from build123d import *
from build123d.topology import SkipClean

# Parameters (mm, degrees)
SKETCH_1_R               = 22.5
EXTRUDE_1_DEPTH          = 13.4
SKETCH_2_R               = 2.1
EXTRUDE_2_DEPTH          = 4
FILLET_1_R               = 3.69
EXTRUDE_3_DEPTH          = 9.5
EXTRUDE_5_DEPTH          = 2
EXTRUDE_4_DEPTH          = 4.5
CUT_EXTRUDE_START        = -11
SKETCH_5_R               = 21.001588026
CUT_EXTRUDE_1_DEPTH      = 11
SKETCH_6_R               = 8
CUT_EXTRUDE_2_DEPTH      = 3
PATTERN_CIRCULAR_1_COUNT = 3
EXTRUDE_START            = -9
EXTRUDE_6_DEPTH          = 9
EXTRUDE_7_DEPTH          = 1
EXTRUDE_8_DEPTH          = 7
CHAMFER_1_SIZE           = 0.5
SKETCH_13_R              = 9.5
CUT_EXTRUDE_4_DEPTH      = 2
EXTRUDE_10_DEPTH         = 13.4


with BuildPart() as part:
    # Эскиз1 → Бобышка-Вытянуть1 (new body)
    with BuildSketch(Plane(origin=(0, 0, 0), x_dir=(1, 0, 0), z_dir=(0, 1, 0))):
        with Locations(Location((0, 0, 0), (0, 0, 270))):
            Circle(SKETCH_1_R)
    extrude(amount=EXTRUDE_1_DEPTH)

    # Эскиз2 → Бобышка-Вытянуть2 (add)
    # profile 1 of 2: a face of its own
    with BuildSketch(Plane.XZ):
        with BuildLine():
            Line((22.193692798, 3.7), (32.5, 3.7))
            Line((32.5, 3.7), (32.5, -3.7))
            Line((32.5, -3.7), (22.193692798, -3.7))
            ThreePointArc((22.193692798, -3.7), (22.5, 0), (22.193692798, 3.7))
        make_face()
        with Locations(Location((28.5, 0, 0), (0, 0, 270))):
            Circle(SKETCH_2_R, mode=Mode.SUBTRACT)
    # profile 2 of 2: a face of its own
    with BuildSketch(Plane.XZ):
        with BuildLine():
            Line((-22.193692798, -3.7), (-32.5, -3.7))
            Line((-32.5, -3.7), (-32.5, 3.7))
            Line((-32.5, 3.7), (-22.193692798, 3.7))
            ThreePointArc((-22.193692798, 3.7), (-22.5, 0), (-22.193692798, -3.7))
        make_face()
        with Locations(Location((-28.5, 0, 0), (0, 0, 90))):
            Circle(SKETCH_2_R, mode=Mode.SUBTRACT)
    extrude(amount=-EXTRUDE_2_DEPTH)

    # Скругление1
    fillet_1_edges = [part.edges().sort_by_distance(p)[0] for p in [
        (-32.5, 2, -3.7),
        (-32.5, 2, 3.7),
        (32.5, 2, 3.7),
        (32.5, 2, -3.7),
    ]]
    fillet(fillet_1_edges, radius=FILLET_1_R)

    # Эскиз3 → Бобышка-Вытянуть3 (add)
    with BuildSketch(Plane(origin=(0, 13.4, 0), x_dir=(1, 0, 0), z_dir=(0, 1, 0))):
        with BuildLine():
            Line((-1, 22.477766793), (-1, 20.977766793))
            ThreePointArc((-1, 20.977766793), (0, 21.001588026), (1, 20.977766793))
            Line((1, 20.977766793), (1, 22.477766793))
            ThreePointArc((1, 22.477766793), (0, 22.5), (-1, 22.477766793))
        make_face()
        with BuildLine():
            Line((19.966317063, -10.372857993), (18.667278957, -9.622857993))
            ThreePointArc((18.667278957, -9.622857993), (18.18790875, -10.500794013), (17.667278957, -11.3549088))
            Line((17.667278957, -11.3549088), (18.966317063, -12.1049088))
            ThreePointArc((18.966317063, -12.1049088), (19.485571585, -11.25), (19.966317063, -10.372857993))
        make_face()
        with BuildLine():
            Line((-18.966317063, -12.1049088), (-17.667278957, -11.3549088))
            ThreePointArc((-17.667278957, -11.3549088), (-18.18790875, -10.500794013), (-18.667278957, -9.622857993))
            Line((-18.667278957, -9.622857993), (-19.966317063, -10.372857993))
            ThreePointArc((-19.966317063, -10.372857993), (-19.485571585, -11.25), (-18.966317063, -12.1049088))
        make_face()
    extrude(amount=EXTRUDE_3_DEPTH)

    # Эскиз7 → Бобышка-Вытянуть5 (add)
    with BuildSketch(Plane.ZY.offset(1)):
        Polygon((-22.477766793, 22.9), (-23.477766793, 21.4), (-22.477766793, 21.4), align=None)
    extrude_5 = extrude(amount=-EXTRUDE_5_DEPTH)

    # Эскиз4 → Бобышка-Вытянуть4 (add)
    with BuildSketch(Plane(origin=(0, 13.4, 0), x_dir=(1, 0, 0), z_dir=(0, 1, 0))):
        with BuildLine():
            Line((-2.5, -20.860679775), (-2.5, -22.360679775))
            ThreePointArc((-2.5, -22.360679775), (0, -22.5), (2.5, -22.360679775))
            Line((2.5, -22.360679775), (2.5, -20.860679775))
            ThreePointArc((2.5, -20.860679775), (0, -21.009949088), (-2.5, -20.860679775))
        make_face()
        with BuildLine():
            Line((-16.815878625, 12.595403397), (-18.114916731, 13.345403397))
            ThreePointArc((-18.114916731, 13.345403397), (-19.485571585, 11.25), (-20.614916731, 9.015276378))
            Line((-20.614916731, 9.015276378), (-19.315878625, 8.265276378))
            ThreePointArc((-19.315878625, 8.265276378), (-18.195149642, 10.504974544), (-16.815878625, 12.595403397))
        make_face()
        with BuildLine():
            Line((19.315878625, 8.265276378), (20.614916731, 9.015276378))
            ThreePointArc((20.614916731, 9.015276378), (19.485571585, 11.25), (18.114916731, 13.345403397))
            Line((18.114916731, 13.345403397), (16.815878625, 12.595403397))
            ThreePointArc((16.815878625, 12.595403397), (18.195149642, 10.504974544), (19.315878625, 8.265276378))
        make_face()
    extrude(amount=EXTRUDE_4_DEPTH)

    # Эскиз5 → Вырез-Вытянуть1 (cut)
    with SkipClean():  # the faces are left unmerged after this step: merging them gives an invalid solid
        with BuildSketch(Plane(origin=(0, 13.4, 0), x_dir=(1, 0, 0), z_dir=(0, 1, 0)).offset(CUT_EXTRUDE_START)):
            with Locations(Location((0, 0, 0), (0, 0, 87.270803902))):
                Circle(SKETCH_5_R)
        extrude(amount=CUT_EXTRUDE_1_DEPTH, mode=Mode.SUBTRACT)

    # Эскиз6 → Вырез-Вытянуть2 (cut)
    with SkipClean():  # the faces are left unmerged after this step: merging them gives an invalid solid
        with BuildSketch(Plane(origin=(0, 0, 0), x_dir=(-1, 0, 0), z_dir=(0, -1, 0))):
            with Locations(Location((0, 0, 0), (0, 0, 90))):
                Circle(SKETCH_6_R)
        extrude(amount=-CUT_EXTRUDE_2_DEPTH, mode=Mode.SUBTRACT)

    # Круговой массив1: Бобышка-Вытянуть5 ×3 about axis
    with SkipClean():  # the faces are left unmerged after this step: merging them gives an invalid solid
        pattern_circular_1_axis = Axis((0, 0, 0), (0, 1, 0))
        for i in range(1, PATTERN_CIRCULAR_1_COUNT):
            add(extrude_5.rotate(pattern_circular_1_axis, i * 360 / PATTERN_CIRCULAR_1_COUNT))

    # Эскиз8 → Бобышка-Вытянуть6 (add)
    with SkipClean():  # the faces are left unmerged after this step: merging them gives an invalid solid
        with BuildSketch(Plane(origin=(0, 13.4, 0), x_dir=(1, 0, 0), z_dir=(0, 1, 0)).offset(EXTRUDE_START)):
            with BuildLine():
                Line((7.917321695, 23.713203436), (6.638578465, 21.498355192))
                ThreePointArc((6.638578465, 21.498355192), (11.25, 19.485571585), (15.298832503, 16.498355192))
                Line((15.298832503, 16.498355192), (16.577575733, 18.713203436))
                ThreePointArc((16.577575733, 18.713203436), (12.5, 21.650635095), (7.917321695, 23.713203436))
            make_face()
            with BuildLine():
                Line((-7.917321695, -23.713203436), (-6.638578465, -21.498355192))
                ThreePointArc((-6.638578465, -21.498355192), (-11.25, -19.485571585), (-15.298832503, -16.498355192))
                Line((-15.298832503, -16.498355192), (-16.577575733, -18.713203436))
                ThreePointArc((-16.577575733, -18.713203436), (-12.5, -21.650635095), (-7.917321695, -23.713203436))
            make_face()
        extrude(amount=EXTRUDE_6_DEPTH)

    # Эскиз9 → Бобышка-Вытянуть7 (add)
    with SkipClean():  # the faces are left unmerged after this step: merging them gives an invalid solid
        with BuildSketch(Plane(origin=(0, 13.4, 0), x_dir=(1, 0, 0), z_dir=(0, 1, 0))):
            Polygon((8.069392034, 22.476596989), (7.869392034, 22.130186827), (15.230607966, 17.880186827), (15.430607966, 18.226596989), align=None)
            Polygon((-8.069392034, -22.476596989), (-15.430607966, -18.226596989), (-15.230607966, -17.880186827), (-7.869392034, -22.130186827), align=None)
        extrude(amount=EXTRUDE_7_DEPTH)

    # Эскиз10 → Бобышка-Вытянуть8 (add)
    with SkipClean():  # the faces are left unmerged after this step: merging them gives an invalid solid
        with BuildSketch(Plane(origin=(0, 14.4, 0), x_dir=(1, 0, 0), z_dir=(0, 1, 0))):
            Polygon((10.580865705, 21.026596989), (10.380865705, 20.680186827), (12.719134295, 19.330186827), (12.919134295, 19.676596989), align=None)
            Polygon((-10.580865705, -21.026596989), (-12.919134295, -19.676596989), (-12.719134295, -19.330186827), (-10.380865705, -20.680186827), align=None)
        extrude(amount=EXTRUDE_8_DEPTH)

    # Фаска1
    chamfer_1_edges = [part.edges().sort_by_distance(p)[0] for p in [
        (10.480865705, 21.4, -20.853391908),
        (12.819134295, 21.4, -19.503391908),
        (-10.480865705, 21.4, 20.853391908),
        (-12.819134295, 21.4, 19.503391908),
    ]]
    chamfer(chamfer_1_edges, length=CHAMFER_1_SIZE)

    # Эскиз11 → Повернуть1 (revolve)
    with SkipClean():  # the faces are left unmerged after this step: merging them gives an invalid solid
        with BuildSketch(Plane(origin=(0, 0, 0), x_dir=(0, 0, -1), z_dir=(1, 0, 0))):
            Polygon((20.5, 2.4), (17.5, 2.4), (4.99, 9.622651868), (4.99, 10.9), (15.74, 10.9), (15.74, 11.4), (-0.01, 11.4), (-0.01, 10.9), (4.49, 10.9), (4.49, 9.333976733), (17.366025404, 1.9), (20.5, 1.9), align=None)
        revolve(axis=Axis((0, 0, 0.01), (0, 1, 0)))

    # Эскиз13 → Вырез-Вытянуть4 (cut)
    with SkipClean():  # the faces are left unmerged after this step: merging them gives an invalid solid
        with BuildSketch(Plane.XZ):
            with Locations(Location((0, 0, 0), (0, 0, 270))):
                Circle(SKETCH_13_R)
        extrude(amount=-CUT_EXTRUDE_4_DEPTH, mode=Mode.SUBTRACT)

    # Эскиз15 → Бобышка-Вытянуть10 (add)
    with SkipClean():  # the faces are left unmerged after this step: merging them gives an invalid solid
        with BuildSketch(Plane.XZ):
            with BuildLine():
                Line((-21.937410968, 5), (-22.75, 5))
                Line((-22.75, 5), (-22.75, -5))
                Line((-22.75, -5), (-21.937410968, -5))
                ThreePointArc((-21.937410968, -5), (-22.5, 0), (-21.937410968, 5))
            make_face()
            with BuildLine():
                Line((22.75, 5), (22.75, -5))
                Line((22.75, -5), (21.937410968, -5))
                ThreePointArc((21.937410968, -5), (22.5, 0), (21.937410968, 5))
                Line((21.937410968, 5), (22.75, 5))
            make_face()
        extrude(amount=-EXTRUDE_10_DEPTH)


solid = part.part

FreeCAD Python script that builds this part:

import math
import FreeCAD as App
import Part
import Sketcher

V = App.Vector
Q = App.Units.Quantity


def edges_at(feature, points):
    """Names of the edges that pass closest to the given points."""
    edges = feature.Shape.Edges
    near = lambda p: min(range(len(edges)), key=lambda i: edges[i].distToShape(Part.Vertex(*p))[0])
    return sorted({f"Edge{near(p) + 1}" for p in points})

doc = App.newDocument("Part")
body = doc.addObject("PartDesign::Body", "Body")

sketch1 = body.newObject("Sketcher::SketchObject", "Sketch")
sketch1.AttachmentSupport = (doc.getObject("XZ_Plane"), [""])
sketch1.MapMode = "FlatFace"
sketch1.addGeometry(Part.Circle(V(0, 0, 0), V(0, 0, 1), 22), False)
sketch1.addConstraint([
    Sketcher.Constraint("Coincident", 0, 3, -1, 1),
    Sketcher.Constraint("Diameter", 0, Q("45 mm")),
])
pad1 = body.newObject("PartDesign::Pad", "Pad")
pad1.Profile = sketch1
pad1.Length = 13.4
pad1.Reversed = True

sketch2 = body.newObject("Sketcher::SketchObject", "Sketch001")
sketch2.AttachmentSupport = (doc.getObject("XZ_Plane"), [""])
sketch2.MapMode = "FlatFace"
sketch2.addGeometry([
    Part.LineSegment(V(32.5, 3.7, 0), V(22.2, 3.7, 0)),
    Part.ArcOfCircle(Part.Circle(V(0, 0, 0), V(0, 0, 1), 22.5), math.radians(-9.46), math.radians(9.46)),
    Part.LineSegment(V(22.2, -3.7, 0), V(32.5, -3.7, 0)),
    Part.LineSegment(V(32.5, -3.7, 0), V(32.5, 3.7, 0)),
    Part.Circle(V(28.5, 0, 0), V(0, 0, 1), 2.1),
    Part.LineSegment(V(-32.5, -3.7, 0), V(-22.2, -3.7, 0)),
    Part.ArcOfCircle(Part.Circle(V(0, 0, 0), V(0, 0, 1), 22.5), math.radians(170.54), math.radians(189.46)),
    Part.LineSegment(V(-22.2, 3.7, 0), V(-32.5, 3.7, 0)),
    Part.LineSegment(V(-32.5, 3.7, 0), V(-32.5, -3.7, 0)),
    Part.Circle(V(-28.5, 0, 0), V(0, 0, 1), 2.1),
], False)
sketch2.addConstraint([
    Sketcher.Constraint("Coincident", 0, 2, 1, 2),
    Sketcher.Constraint("Coincident", 1, 1, 2, 1),
    Sketcher.Constraint("Coincident", 2, 2, 3, 1),
    Sketcher.Constraint("Coincident", 3, 2, 0, 1),
    Sketcher.Constraint("Coincident", 5, 2, 6, 2),
    Sketcher.Constraint("Coincident", 6, 1, 7, 1),
    Sketcher.Constraint("Coincident", 7, 2, 8, 1),
    Sketcher.Constraint("Coincident", 8, 2, 5, 1),
    Sketcher.Constraint("Horizontal", 0),
    Sketcher.Constraint("Horizontal", 2),
    Sketcher.Constraint("Vertical", 3),
    Sketcher.Constraint("Horizontal", 5),
    Sketcher.Constraint("Horizontal", 7),
    Sketcher.Constraint("Vertical", 8),
    Sketcher.Constraint("Coincident", 1, 3, -1, 1),
    Sketcher.Constraint("Coincident", 6, 3, -1, 1),
    Sketcher.Constraint("Equal", 1, 6),
    Sketcher.Constraint("Equal", 4, 9),
    Sketcher.Constraint("Symmetric", 4, 3, 9, 3, -1, 1),
    Sketcher.Constraint("Symmetric", 2, 2, 7, 2, -1, 1),
    Sketcher.Constraint("PointOnObject", 4, 3, -1),
    Sketcher.Constraint("Horizontal", 2, 2, 5, 2),
    Sketcher.Constraint("Horizontal", 3, 2, 6, 1),
    Sketcher.Constraint("Diameter", 4, Q("4.2 mm")),
    Sketcher.Constraint("Radius", 1, Q("22.5 mm")),
    Sketcher.Constraint("DistanceY", 3, 1, 3, 2, Q("7.4 mm")),
    Sketcher.Constraint("DistanceX", 9, 3, 4, 3, Q("57 mm")),
    Sketcher.Constraint("DistanceX", 4, 3, 2, 2, Q("4 mm")),
])
pad2 = body.newObject("PartDesign::Pad", "Pad001")
pad2.Profile = sketch2
pad2.Length = 4
pad2.Reversed = True
doc.recompute()

fillet = body.newObject("PartDesign::Fillet", "Fillet")
fillet.Base = (pad2, edges_at(pad2, [
    (-32.5, 2, -3.7),
    (-32.5, 2, 3.7),
    (32.5, 2, 3.7),
    (32.5, 2, -3.7),
]))
fillet.Radius = 3.69

sketch3 = body.newObject("Sketcher::SketchObject", "Sketch002")
sketch3.AttachmentSupport = (doc.getObject("XZ_Plane"), [""])
sketch3.MapMode = "FlatFace"
sketch3.AttachmentOffset = App.Placement(V(0, 0, -13.4), App.Rotation())
sketch3.addGeometry([
    Part.LineSegment(V(-1, -22.5, 0), V(-1, -21, 0)),
    Part.ArcOfCircle(Part.Circle(V(0, 0, 0), V(0, 0, 1), 21), math.radians(-92.73), math.radians(-87.27)),
    Part.LineSegment(V(1, -21, 0), V(1, -22.5, 0)),
    Part.ArcOfCircle(Part.Circle(V(0, 0, 0), V(0, 0, 1), 22.5), math.radians(-92.55), math.radians(-87.45)),
    Part.LineSegment(V(20, 10.4, 0), V(18.7, 9.6, 0)),
    Part.ArcOfCircle(Part.Circle(V(0, 0, 0), V(0, 0, 1), 21), math.radians(27.27), math.radians(32.73)),
    Part.LineSegment(V(17.7, 11.4, 0), V(19, 12.1, 0)),
    Part.ArcOfCircle(Part.Circle(V(0, 0, 0), V(0, 0, 1), 22.5), math.radians(27.45), math.radians(32.55)),
    Part.LineSegment(V(-19, 12.1, 0), V(-17.7, 11.4, 0)),
    Part.ArcOfCircle(Part.Circle(V(0, 0, 0), V(0, 0, 1), 21), math.radians(147.27), math.radians(152.73)),
    Part.LineSegment(V(-18.7, 9.6, 0), V(-20, 10.4, 0)),
    Part.ArcOfCircle(Part.Circle(V(0, 0, 0), V(0, 0, 1), 22.5), math.radians(147.45), math.radians(152.55)),
], False)
sketch3.addConstraint([
    Sketcher.Constraint("Coincident", 0, 2, 1, 1),
    Sketcher.Constraint("Coincident", 1, 2, 2, 1),
    Sketcher.Constraint("Coincident", 2, 2, 3, 2),
    Sketcher.Constraint("Coincident", 3, 1, 0, 1),
    Sketcher.Constraint("Coincident", 4, 2, 5, 1),
    Sketcher.Constraint("Coincident", 5, 2, 6, 1),
    Sketcher.Constraint("Coincident", 6, 2, 7, 2),
    Sketcher.Constraint("Coincident", 7, 1, 4, 1),
    Sketcher.Constraint("Coincident", 8, 2, 9, 1),
    Sketcher.Constraint("Coincident", 9, 2, 10, 1),
    Sketcher.Constraint("Coincident", 10, 2, 11, 2),
    Sketcher.Constraint("Coincident", 11, 1, 8, 1),
    Sketcher.Constraint("Vertical", 0),
    Sketcher.Constraint("Vertical", 2),
    Sketcher.Constraint("Coincident", 1, 3, -1, 1),
    Sketcher.Constraint("Coincident", 3, 3, -1, 1),
    Sketcher.Constraint("Coincident", 5, 3, -1, 1),
    Sketcher.Constraint("Coincident", 7, 3, -1, 1),
    Sketcher.Constraint("Coincident", 9, 3, -1, 1),
    Sketcher.Constraint("Coincident", 11, 3, -1, 1),
    Sketcher.Constraint("Equal", 1, 5),
    Sketcher.Constraint("Equal", 3, 7),
    Sketcher.Constraint("Equal", 5, 9),
    Sketcher.Constraint("Equal", 7, 11),
    Sketcher.Constraint("Parallel", 4, 6),
    Sketcher.Constraint("Parallel", 8, 10),
    Sketcher.Constraint("Horizontal", 0, 2, 1, 2),
    Sketcher.Constraint("Horizontal", 5, 2, 8, 2),
    Sketcher.Constraint("Horizontal", 4, 2, 9, 2),
    Sketcher.Constraint("Horizontal", 7, 1, 10, 2),
    Sketcher.Constraint("Equal", 4, 6),
    Sketcher.Constraint("Radius", 3, Q("22.5 mm")),
    Sketcher.Constraint("Angle", 4, Q("-150 deg")),
    Sketcher.Constraint("DistanceY", 0, 1, 0, 2, Q("1.5 mm")),
    Sketcher.Constraint("DistanceX", 0, 2, -1, 1, Q("1 mm")),
    Sketcher.Constraint("DistanceX", 5, 2, 4, 2, Q("1 mm")),
])
pad3 = body.newObject("PartDesign::Pad", "Pad002")
pad3.Profile = sketch3
pad3.Length = 9.5
pad3.Reversed = True

sketch4 = body.newObject("Sketcher::SketchObject", "Sketch003")
sketch4.AttachmentSupport = (doc.getObject("YZ_Plane"), [""])
sketch4.MapMode = "FlatFace"
sketch4.AttachmentOffset = App.Placement(V(0, 0, -1), App.Rotation())
sketch4.addGeometry([
    Part.LineSegment(V(22.9, -22.5, 0), V(21.4, -23.5, 0)),
    Part.LineSegment(V(21.4, -23.5, 0), V(21.4, -22.5, 0)),
    Part.LineSegment(V(21.4, -22.5, 0), V(22.9, -22.5, 0)),
], False)
sketch4.addConstraint([
    Sketcher.Constraint("Coincident", 0, 2, 1, 1),
    Sketcher.Constraint("Coincident", 1, 2, 2, 1),
    Sketcher.Constraint("Coincident", 2, 2, 0, 1),
    Sketcher.Constraint("Vertical", 1),
    Sketcher.Constraint("Horizontal", 2),
    Sketcher.Constraint("DistanceY", 1, 1, 1, 2, Q("1 mm")),
    Sketcher.Constraint("DistanceX", 2, 1, 2, 2, Q("1.5 mm")),
    Sketcher.Constraint("DistanceX", -1, 1, 0, 2, Q("21.4 mm")),
    Sketcher.Constraint("DistanceY", 0, 2, -1, 1, Q("23.477767 mm")),
])
pad4 = body.newObject("PartDesign::Pad", "Pad003")
pad4.Profile = sketch4
pad4.Length = 2

sketch5 = body.newObject("Sketcher::SketchObject", "Sketch004")
sketch5.AttachmentSupport = (doc.getObject("XZ_Plane"), [""])
sketch5.MapMode = "FlatFace"
sketch5.AttachmentOffset = App.Placement(V(0, 0, -13.4), App.Rotation())
sketch5.addGeometry([
    Part.LineSegment(V(-2.5, 20.9, 0), V(-2.5, 22.4, 0)),
    Part.ArcOfCircle(Part.Circle(V(0, 0, 0), V(0, 0, 1), 22.5), math.radians(83.62), math.radians(96.38)),
    Part.LineSegment(V(2.5, 22.4, 0), V(2.5, 20.9, 0)),
    Part.ArcOfCircle(Part.Circle(V(0, 0, 0), V(0, 0, 1), 21), math.radians(83.17), math.radians(96.83)),
    Part.LineSegment(V(-16.8, -12.6, 0), V(-18.1, -13.3, 0)),
    Part.ArcOfCircle(Part.Circle(V(0, 0, 0), V(0, 0, 1), 22.5), math.radians(-156.38), math.radians(-143.62)),
    Part.LineSegment(V(-20.6, -9, 0), V(-19.3, -8.3, 0)),
    Part.ArcOfCircle(Part.Circle(V(0, 0, 0), V(0, 0, 1), 21), math.radians(-156.83), math.radians(-143.17)),
    Part.LineSegment(V(19.3, -8.3, 0), V(20.6, -9, 0)),
    Part.ArcOfCircle(Part.Circle(V(0, 0, 0), V(0, 0, 1), 22.5), math.radians(-36.38), math.radians(-23.62)),
    Part.LineSegment(V(18.1, -13.3, 0), V(16.8, -12.6, 0)),
    Part.ArcOfCircle(Part.Circle(V(0, 0, 0), V(0, 0, 1), 21), math.radians(-36.83), math.radians(-23.17)),
], False)
sketch5.addConstraint([
    Sketcher.Constraint("Coincident", 0, 2, 1, 2),
    Sketcher.Constraint("Coincident", 1, 1, 2, 1),
    Sketcher.Constraint("Coincident", 2, 2, 3, 1),
    Sketcher.Constraint("Coincident", 3, 2, 0, 1),
    Sketcher.Constraint("Coincident", 4, 2, 5, 2),
    Sketcher.Constraint("Coincident", 5, 1, 6, 1),
    Sketcher.Constraint("Coincident", 6, 2, 7, 1),
    Sketcher.Constraint("Coincident", 7, 2, 4, 1),
    Sketcher.Constraint("Coincident", 8, 2, 9, 2),
    Sketcher.Constraint("Coincident", 9, 1, 10, 1),
    Sketcher.Constraint("Coincident", 10, 2, 11, 1),
    Sketcher.Constraint("Coincident", 11, 2, 8, 1),
    Sketcher.Constraint("Vertical", 0),
    Sketcher.Constraint("Vertical", 2),
    Sketcher.Constraint("Coincident", 1, 3, -1, 1),
    Sketcher.Constraint("Coincident", 3, 3, -1, 1),
    Sketcher.Constraint("Coincident", 5, 3, -1, 1),
    Sketcher.Constraint("Coincident", 7, 3, -1, 1),
    Sketcher.Constraint("Coincident", 9, 3, -1, 1),
    Sketcher.Constraint("Coincident", 11, 3, -1, 1),
    Sketcher.Constraint("Equal", 1, 5),
    Sketcher.Constraint("Equal", 3, 7),
    Sketcher.Constraint("Equal", 5, 9),
    Sketcher.Constraint("Equal", 7, 11),
    Sketcher.Constraint("Parallel", 4, 6),
    Sketcher.Constraint("Parallel", 8, 10),
    Sketcher.Constraint("Horizontal", 0, 2, 1, 1),
    Sketcher.Constraint("Horizontal", 5, 1, 8, 2),
    Sketcher.Constraint("Horizontal", 4, 2, 9, 1),
    Sketcher.Constraint("Horizontal", 7, 2, 10, 2),
    Sketcher.Constraint("Equal", 4, 6),
    Sketcher.Constraint("Radius", 1, Q("22.5 mm")),
    Sketcher.Constraint("Angle", 4, Q("-150 deg")),
    Sketcher.Constraint("DistanceY", 0, 1, 0, 2, Q("1.5 mm")),
    Sketcher.Constraint("DistanceX", 0, 2, 1, 1, Q("5 mm")),
    Sketcher.Constraint("DistanceX", 5, 1, 4, 2, Q("2.5 mm")),
])
pad5 = body.newObject("PartDesign::Pad", "Pad004")
pad5.Profile = sketch5
pad5.Length = 4.5
pad5.Reversed = True

sketch6 = body.newObject("Sketcher::SketchObject", "Sketch005")
sketch6.AttachmentSupport = (doc.getObject("XZ_Plane"), [""])
sketch6.MapMode = "FlatFace"
sketch6.AttachmentOffset = App.Placement(V(0, 0, -2.4), App.Rotation())
sketch6.addGeometry(Part.Circle(V(0, 0, 0), V(0, 0, 1), 21), False)
sketch6.addConstraint([
    Sketcher.Constraint("Coincident", 0, 3, -1, 1),
    Sketcher.Constraint("Diameter", 0, Q("42.003176 mm")),
])
pocket1 = body.newObject("PartDesign::Pocket", "Pocket")
pocket1.Profile = sketch6
pocket1.Length = 11

sketch7 = body.newObject("Sketcher::SketchObject", "Sketch006")
sketch7.AttachmentSupport = (doc.getObject("XZ_Plane"), [""])
sketch7.MapMode = "FlatFace"
sketch7.addGeometry(Part.Circle(V(0, 0, 0), V(0, 0, 1), 8), False)
sketch7.addConstraint([
    Sketcher.Constraint("Coincident", 0, 3, -1, 1),
    Sketcher.Constraint("Diameter", 0, Q("16 mm")),
])
pocket2 = body.newObject("PartDesign::Pocket", "Pocket001")
pocket2.Profile = sketch7
pocket2.Length = 3
doc.recompute()

polarpattern = body.newObject("PartDesign::PolarPattern", "PolarPattern")
polarpattern.Originals = [pad4]
polarpattern.Axis = (doc.getObject("Y_Axis"), [""])
polarpattern.Angle = 360
polarpattern.Occurrences = 3
body.Tip = polarpattern

sketch8 = body.newObject("Sketcher::SketchObject", "Sketch007")
sketch8.AttachmentSupport = (doc.getObject("XZ_Plane"), [""])
sketch8.MapMode = "FlatFace"
sketch8.AttachmentOffset = App.Placement(V(0, 0, -4.4), App.Rotation())
sketch8.addGeometry([
    Part.LineSegment(V(7.9, -23.7, 0), V(6.6, -21.5, 0)),
    Part.ArcOfCircle(Part.Circle(V(0, 0, 0), V(0, 0, 1), 22.5), math.radians(-73), math.radians(-47)),
    Part.LineSegment(V(15.3, -16.5, 0), V(16.6, -18.7, 0)),
    Part.ArcOfCircle(Part.Circle(V(0, 0, 0), V(0, 0, 1), 25), math.radians(-72), math.radians(-48)),
    Part.LineSegment(V(-7.9, 23.7, 0), V(-6.6, 21.5, 0)),
    Part.ArcOfCircle(Part.Circle(V(0, 0, 0), V(0, 0, 1), 22.5), math.radians(107), math.radians(133)),
    Part.LineSegment(V(-15.3, 16.5, 0), V(-16.6, 18.7, 0)),
    Part.ArcOfCircle(Part.Circle(V(0, 0, 0), V(0, 0, 1), 25), math.radians(108), math.radians(132)),
], False)
sketch8.addConstraint([
    Sketcher.Constraint("Coincident", 0, 2, 1, 1),
    Sketcher.Constraint("Coincident", 1, 2, 2, 1),
    Sketcher.Constraint("Coincident", 2, 2, 3, 2),
    Sketcher.Constraint("Coincident", 3, 1, 0, 1),
    Sketcher.Constraint("Coincident", 4, 2, 5, 1),
    Sketcher.Constraint("Coincident", 5, 2, 6, 1),
    Sketcher.Constraint("Coincident", 6, 2, 7, 2),
    Sketcher.Constraint("Coincident", 7, 1, 4, 1),
    Sketcher.Constraint("Coincident", 1, 3, -1, 1),
    Sketcher.Constraint("Coincident", 3, 3, -1, 1),
    Sketcher.Constraint("Coincident", 5, 3, -1, 1),
    Sketcher.Constraint("Coincident", 7, 3, -1, 1),
    Sketcher.Constraint("Equal", 1, 5),
    Sketcher.Constraint("Equal", 3, 7),
    Sketcher.Constraint("Parallel", 0, 2),
    Sketcher.Constraint("Parallel", 2, 4),
    Sketcher.Constraint("Parallel", 4, 6),
    Sketcher.Constraint("Equal", 0, 2),
    Sketcher.Constraint("Equal", 2, 4),
    Sketcher.Constraint("Equal", 4, 6),
    Sketcher.Constraint("Radius", 3, Q("25 mm")),
    Sketcher.Constraint("Radius", 1, Q("22.5 mm")),
    Sketcher.Constraint("Angle", 0, Q("120 deg")),
    Sketcher.Constraint("DistanceY", 0, 2, 1, 2, Q("5 mm")),
])
pad6 = body.newObject("PartDesign::Pad", "Pad005")
pad6.Profile = sketch8
pad6.Length = 9
pad6.Reversed = True

sketch9 = body.newObject("Sketcher::SketchObject", "Sketch008")
sketch9.AttachmentSupport = (doc.getObject("XZ_Plane"), [""])
sketch9.MapMode = "FlatFace"
sketch9.AttachmentOffset = App.Placement(V(0, 0, -13.4), App.Rotation())
sketch9.addGeometry([
    Part.LineSegment(V(8.07, -22.48, 0), V(7.87, -22.13, 0)),
    Part.LineSegment(V(7.87, -22.13, 0), V(15.23, -17.88, 0)),
    Part.LineSegment(V(15.23, -17.88, 0), V(15.43, -18.23, 0)),
    Part.LineSegment(V(15.43, -18.23, 0), V(8.07, -22.48, 0)),
    Part.LineSegment(V(-15.43, 18.23, 0), V(-8.07, 22.48, 0)),
    Part.LineSegment(V(-8.07, 22.48, 0), V(-7.87, 22.13, 0)),
    Part.LineSegment(V(-7.87, 22.13, 0), V(-15.23, 17.88, 0)),
    Part.LineSegment(V(-15.23, 17.88, 0), V(-15.43, 18.23, 0)),
], False)
sketch9.addConstraint([
    Sketcher.Constraint("Coincident", 0, 2, 1, 1),
    Sketcher.Constraint("Coincident", 1, 2, 2, 1),
    Sketcher.Constraint("Coincident", 2, 2, 3, 1),
    Sketcher.Constraint("Coincident", 3, 2, 0, 1),
    Sketcher.Constraint("Coincident", 4, 2, 5, 1),
    Sketcher.Constraint("Coincident", 5, 2, 6, 1),
    Sketcher.Constraint("Coincident", 6, 2, 7, 1),
    Sketcher.Constraint("Coincident", 7, 2, 4, 1),
    Sketcher.Constraint("Symmetric", 3, 2, 4, 2, -1, 1),
    Sketcher.Constraint("Symmetric", 0, 2, 5, 2, -1, 1),
    Sketcher.Constraint("Symmetric", 1, 2, 6, 2, -1, 1),
    Sketcher.Constraint("Symmetric", 2, 2, 7, 2, -1, 1),
    Sketcher.Constraint("Perpendicular", 0, 1),
    Sketcher.Constraint("Perpendicular", 1, 2),
    Sketcher.Constraint("Perpendicular", 2, 3),
    Sketcher.Constraint("Angle", 0, Q("120 deg")),
    Sketcher.Constraint("Distance", 0, Q("0.4 mm")),
    Sketcher.Constraint("Distance", 1, Q("8.5 mm")),
    Sketcher.Constraint("DistanceX", 4, 2, 1, 2, Q("23.3 mm")),
    Sketcher.Constraint("DistanceY", 0, 2, -1, 1, Q("22.130187 mm")),
])
pad7 = body.newObject("PartDesign::Pad", "Pad006")
pad7.Profile = sketch9
pad7.Length = 1
pad7.Reversed = True

sketch10 = body.newObject("Sketcher::SketchObject", "Sketch009")
sketch10.AttachmentSupport = (doc.getObject("XZ_Plane"), [""])
sketch10.MapMode = "FlatFace"
sketch10.AttachmentOffset = App.Placement(V(0, 0, -14.4), App.Rotation())
sketch10.addGeometry([
    Part.LineSegment(V(10.58, -21.03, 0), V(10.38, -20.68, 0)),
    Part.LineSegment(V(10.38, -20.68, 0), V(12.72, -19.33, 0)),
    Part.LineSegment(V(12.72, -19.33, 0), V(12.92, -19.68, 0)),
    Part.LineSegment(V(12.92, -19.68, 0), V(10.58, -21.03, 0)),
    Part.LineSegment(V(-12.92, 19.68, 0), V(-10.58, 21.03, 0)),
    Part.LineSegment(V(-10.58, 21.03, 0), V(-10.38, 20.68, 0)),
    Part.LineSegment(V(-10.38, 20.68, 0), V(-12.72, 19.33, 0)),
    Part.LineSegment(V(-12.72, 19.33, 0), V(-12.92, 19.68, 0)),
], False)
sketch10.addConstraint([
    Sketcher.Constraint("Coincident", 0, 2, 1, 1),
    Sketcher.Constraint("Coincident", 1, 2, 2, 1),
    Sketcher.Constraint("Coincident", 2, 2, 3, 1),
    Sketcher.Constraint("Coincident", 3, 2, 0, 1),
    Sketcher.Constraint("Coincident", 4, 2, 5, 1),
    Sketcher.Constraint("Coincident", 5, 2, 6, 1),
    Sketcher.Constraint("Coincident", 6, 2, 7, 1),
    Sketcher.Constraint("Coincident", 7, 2, 4, 1),
    Sketcher.Constraint("Symmetric", 3, 2, 4, 2, -1, 1),
    Sketcher.Constraint("Symmetric", 0, 2, 5, 2, -1, 1),
    Sketcher.Constraint("Symmetric", 1, 2, 6, 2, -1, 1),
    Sketcher.Constraint("Symmetric", 2, 2, 7, 2, -1, 1),
    Sketcher.Constraint("Perpendicular", 0, 1),
    Sketcher.Constraint("Perpendicular", 1, 2),
    Sketcher.Constraint("Perpendicular", 2, 3),
    Sketcher.Constraint("Angle", 0, Q("120 deg")),
    Sketcher.Constraint("Distance", 0, Q("0.4 mm")),
    Sketcher.Constraint("Distance", 1, Q("2.7 mm")),
    Sketcher.Constraint("DistanceX", 4, 2, 1, 2, Q("23.3 mm")),
    Sketcher.Constraint("DistanceY", 0, 2, -1, 1, Q("20.680187 mm")),
])
pad8 = body.newObject("PartDesign::Pad", "Pad007")
pad8.Profile = sketch10
pad8.Length = 7
pad8.Reversed = True
doc.recompute()

chamfer = body.newObject("PartDesign::Chamfer", "Chamfer")
chamfer.Base = (pad8, edges_at(pad8, [
    (10.481, 21.4, -20.853),
    (12.819, 21.4, -19.503),
    (-10.481, 21.4, 20.853),
    (-12.819, 21.4, 19.503),
]))
chamfer.Size = 0.5

sketch11 = body.newObject("Sketcher::SketchObject", "Sketch010")
sketch11.AttachmentSupport = (doc.getObject("YZ_Plane"), [""])
sketch11.MapMode = "FlatFace"
sketch11.addGeometry([
    Part.LineSegment(V(2.4, -20.5, 0), V(2.4, -17.5, 0)),
    Part.LineSegment(V(2.4, -17.5, 0), V(9.6, -5, 0)),
    Part.LineSegment(V(9.6, -5, 0), V(10.9, -5, 0)),
    Part.LineSegment(V(10.9, -5, 0), V(10.9, -15.7, 0)),
    Part.LineSegment(V(10.9, -15.7, 0), V(11.4, -15.7, 0)),
    Part.LineSegment(V(11.4, -15.7, 0), V(11.4, 0, 0)),
    Part.LineSegment(V(11.4, 0, 0), V(10.9, 0, 0)),
    Part.LineSegment(V(10.9, 0, 0), V(10.9, -4.5, 0)),
    Part.LineSegment(V(10.9, -4.5, 0), V(9.3, -4.5, 0)),
    Part.LineSegment(V(9.3, -4.5, 0), V(1.9, -17.4, 0)),
    Part.LineSegment(V(1.9, -17.4, 0), V(1.9, -20.5, 0)),
    Part.LineSegment(V(1.9, -20.5, 0), V(2.4, -20.5, 0)),
], False)
sketch11.addGeometry(Part.LineSegment(V(1.9, 0, 0), V(11.4, 0, 0)), True)
sketch11.addConstraint([
    Sketcher.Constraint("Coincident", 0, 2, 1, 1),
    Sketcher.Constraint("Coincident", 1, 2, 2, 1),
    Sketcher.Constraint("Coincident", 2, 2, 3, 1),
    Sketcher.Constraint("Coincident", 3, 2, 4, 1),
    Sketcher.Constraint("Coincident", 4, 2, 5, 1),
    Sketcher.Constraint("Coincident", 5, 2, 6, 1),
    Sketcher.Constraint("Coincident", 6, 2, 7, 1),
    Sketcher.Constraint("Coincident", 7, 2, 8, 1),
    Sketcher.Constraint("Coincident", 8, 2, 9, 1),
    Sketcher.Constraint("Coincident", 9, 2, 10, 1),
    Sketcher.Constraint("Coincident", 10, 2, 11, 1),
    Sketcher.Constraint("Coincident", 11, 2, 0, 1),
    Sketcher.Constraint("Vertical", 0),
    Sketcher.Constraint("Horizontal", 2),
    Sketcher.Constraint("Vertical", 3),
    Sketcher.Constraint("Horizontal", 4),
    Sketcher.Constraint("Vertical", 5),
    Sketcher.Constraint("Horizontal", 6),
    Sketcher.Constraint("Vertical", 7),
    Sketcher.Constraint("Horizontal", 8),
    Sketcher.Constraint("Vertical", 10),
    Sketcher.Constraint("Horizontal", 11),
    Sketcher.Constraint("Horizontal", 12),
    Sketcher.Constraint("Coincident", 12, 2, 5, 2),
    Sketcher.Constraint("Parallel", 1, 9),
    Sketcher.Constraint("Vertical", 3, 2, 6, 2),
    Sketcher.Constraint("Vertical", 10, 2, 12, 1),
    Sketcher.Constraint("Equal", 6, 11),
    Sketcher.Constraint("DistanceY", 0, 1, 0, 2, Q("3 mm")),
    Sketcher.Constraint("Angle", 1, Q("60 deg")),
    Sketcher.Constraint("DistanceX", 4, 1, 4, 2, Q("0.5 mm")),
    Sketcher.Constraint("DistanceX", 12, 1, 12, 2, Q("9.5 mm")),
    Sketcher.Constraint("DistanceY", 7, 2, 7, 1, Q("4.5 mm")),
    Sketcher.Constraint("DistanceY", 2, 2, 5, 2, Q("5 mm")),
    Sketcher.Constraint("DistanceY", 3, 2, 3, 1, Q("10.75 mm")),
    Sketcher.Constraint("DistanceX", -1, 1, 0, 2, Q("2.4 mm")),
    Sketcher.Constraint("DistanceY", 0, 2, -1, 1, Q("17.5 mm")),
    Sketcher.Constraint("DistanceY", 1, 2, -1, 1, Q("4.99 mm")),
    Sketcher.Constraint("DistanceX", 8, 2, 8, 1, Q("1.566023 mm")),
])
revolution = body.newObject("PartDesign::Revolution", "Revolution")
revolution.Profile = sketch11
revolution.ReferenceAxis = (sketch11, ["Axis0"])
revolution.Angle = 360

sketch12 = body.newObject("Sketcher::SketchObject", "Sketch011")
sketch12.AttachmentSupport = (doc.getObject("XZ_Plane"), [""])
sketch12.MapMode = "FlatFace"
sketch12.addGeometry(Part.Circle(V(0, 0, 0), V(0, 0, 1), 10), False)
sketch12.addConstraint([
    Sketcher.Constraint("Coincident", 0, 3, -1, 1),
    Sketcher.Constraint("Diameter", 0, Q("19 mm")),
])
pocket3 = body.newObject("PartDesign::Pocket", "Pocket002")
pocket3.Profile = sketch12
pocket3.Length = 2

sketch13 = body.newObject("Sketcher::SketchObject", "Sketch012")
sketch13.AttachmentSupport = (doc.getObject("XZ_Plane"), [""])
sketch13.MapMode = "FlatFace"
sketch13.addGeometry([
    Part.LineSegment(V(-21.9, 5, 0), V(-22.8, 5, 0)),
    Part.LineSegment(V(-22.8, 5, 0), V(-22.8, -5, 0)),
    Part.LineSegment(V(-22.8, -5, 0), V(-21.9, -5, 0)),
    Part.ArcOfCircle(Part.Circle(V(0, 0, 0), V(0, 0, 1), 22.5), math.radians(167), math.radians(193)),
    Part.LineSegment(V(22.8, -5, 0), V(22.8, 5, 0)),
    Part.LineSegment(V(22.8, 5, 0), V(21.9, 5, 0)),
    Part.ArcOfCircle(Part.Circle(V(0, 0, 0), V(0, 0, 1), 22.5), math.radians(-13), math.radians(13)),
    Part.LineSegment(V(21.9, -5, 0), V(22.8, -5, 0)),
], False)
sketch13.addConstraint([
    Sketcher.Constraint("Coincident", 0, 2, 1, 1),
    Sketcher.Constraint("Coincident", 1, 2, 2, 1),
    Sketcher.Constraint("Coincident", 2, 2, 3, 2),
    Sketcher.Constraint("Coincident", 3, 1, 0, 1),
    Sketcher.Constraint("Coincident", 4, 2, 5, 1),
    Sketcher.Constraint("Coincident", 5, 2, 6, 2),
    Sketcher.Constraint("Coincident", 6, 1, 7, 1),
    Sketcher.Constraint("Coincident", 7, 2, 4, 1),
    Sketcher.Constraint("Horizontal", 0),
    Sketcher.Constraint("Vertical", 1),
    Sketcher.Constraint("Horizontal", 2),
    Sketcher.Constraint("Vertical", 4),
    Sketcher.Constraint("Horizontal", 5),
    Sketcher.Constraint("Horizontal", 7),
    Sketcher.Constraint("Coincident", 3, 3, -1, 1),
    Sketcher.Constraint("Coincident", 6, 3, -1, 1),
    Sketcher.Constraint("Equal", 3, 6),
    Sketcher.Constraint("Symmetric", 1, 2, 4, 2, -1, 1),
    Sketcher.Constraint("Horizontal", 3, 1, 4, 2),
    Sketcher.Constraint("Horizontal", 2, 2, 6, 1),
    Sketcher.Constraint("Radius", 3, Q("22.5 mm")),
    Sketcher.Constraint("DistanceY", 1, 2, 1, 1, Q("10 mm")),
    Sketcher.Constraint("DistanceX", 0, 2, 4, 2, Q("45.5 mm")),
])
pad9 = body.newObject("PartDesign::Pad", "Pad008")
pad9.Profile = sketch13
pad9.Length = 13.4
pad9.Reversed = True

doc.recompute()
